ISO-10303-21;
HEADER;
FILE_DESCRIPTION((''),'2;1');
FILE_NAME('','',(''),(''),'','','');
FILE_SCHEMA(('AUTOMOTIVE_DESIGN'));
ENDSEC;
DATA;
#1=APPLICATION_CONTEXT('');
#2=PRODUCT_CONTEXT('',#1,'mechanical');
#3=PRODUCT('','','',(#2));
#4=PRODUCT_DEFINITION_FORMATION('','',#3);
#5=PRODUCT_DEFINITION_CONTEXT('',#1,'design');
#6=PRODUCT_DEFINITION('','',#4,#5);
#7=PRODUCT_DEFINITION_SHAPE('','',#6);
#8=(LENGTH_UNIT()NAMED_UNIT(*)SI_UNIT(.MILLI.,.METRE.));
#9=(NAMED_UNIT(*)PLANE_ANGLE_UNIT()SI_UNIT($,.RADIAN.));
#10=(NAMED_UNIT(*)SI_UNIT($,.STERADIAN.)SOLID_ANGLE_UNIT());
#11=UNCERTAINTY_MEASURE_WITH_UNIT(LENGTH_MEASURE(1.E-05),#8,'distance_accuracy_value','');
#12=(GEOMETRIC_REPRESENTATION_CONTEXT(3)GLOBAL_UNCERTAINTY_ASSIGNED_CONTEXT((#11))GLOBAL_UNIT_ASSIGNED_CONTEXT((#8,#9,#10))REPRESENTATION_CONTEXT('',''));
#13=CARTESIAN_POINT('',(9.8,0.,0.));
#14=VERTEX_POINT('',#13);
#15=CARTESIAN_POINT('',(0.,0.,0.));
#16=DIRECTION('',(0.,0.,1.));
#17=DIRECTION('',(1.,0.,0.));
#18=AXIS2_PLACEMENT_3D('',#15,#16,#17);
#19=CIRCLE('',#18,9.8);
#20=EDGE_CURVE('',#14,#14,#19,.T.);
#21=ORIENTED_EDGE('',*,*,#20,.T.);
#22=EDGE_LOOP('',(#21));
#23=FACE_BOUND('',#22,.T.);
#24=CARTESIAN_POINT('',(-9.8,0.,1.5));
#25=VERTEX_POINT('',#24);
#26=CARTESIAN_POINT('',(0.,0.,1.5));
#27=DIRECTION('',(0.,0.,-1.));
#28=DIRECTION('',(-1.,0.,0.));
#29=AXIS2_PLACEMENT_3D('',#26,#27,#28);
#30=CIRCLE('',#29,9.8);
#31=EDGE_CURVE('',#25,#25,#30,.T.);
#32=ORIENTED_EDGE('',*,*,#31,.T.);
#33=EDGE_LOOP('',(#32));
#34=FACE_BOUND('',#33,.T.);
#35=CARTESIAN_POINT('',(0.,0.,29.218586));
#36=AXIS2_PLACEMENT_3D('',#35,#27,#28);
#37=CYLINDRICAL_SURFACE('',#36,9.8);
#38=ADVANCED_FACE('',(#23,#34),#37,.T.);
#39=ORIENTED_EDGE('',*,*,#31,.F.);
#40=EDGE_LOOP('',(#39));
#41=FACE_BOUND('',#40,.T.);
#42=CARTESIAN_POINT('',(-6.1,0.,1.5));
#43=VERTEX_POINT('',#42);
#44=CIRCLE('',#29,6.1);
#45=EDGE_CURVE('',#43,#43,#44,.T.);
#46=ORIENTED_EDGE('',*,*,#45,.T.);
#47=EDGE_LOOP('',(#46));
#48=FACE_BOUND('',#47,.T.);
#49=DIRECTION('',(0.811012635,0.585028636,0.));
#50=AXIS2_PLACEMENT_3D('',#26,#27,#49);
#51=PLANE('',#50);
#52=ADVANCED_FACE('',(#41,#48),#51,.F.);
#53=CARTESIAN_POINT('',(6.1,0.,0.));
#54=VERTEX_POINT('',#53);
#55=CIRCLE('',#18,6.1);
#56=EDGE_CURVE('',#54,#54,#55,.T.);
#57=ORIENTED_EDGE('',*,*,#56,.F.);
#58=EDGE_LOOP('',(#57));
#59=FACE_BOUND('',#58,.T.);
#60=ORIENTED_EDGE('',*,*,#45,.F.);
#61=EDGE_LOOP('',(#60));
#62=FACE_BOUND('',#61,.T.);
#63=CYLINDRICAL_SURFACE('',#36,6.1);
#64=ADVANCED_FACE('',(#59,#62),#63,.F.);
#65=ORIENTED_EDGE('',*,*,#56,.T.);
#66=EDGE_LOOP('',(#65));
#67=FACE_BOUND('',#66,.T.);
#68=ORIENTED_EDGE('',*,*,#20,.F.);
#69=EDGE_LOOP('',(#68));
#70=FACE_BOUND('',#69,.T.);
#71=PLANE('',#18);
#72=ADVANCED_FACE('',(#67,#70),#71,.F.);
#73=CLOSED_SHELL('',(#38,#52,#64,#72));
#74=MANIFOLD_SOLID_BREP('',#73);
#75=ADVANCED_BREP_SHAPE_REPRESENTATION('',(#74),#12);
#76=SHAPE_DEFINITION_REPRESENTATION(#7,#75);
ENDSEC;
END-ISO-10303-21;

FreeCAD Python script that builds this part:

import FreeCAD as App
import Part
import Sketcher

doc = App.newDocument("Part")
body = doc.addObject("PartDesign::Body", "Body")

# Sketch on XY plane
sketch1 = body.newObject("Sketcher::SketchObject", "Sketch")
sketch1.AttachmentSupport = (doc.getObject("XY_Plane"), [""])
sketch1.MapMode = "FlatFace"
sketch1.addGeometry(Part.Circle(App.Vector(0, 0, 0), App.Vector(0, 0, 1), 9.8), False)
sketch1.addGeometry(Part.Circle(App.Vector(0, 0, 0), App.Vector(0, 0, 1), 6.1), False)
sketch1.addConstraint(Sketcher.Constraint("Coincident", 0, 3, -1, 1))
sketch1.addConstraint(Sketcher.Constraint("Coincident", 1, 3, -1, 1))
sketch1.addConstraint(Sketcher.Constraint("Diameter", 0, 19.6))
sketch1.addConstraint(Sketcher.Constraint("Diameter", 1, 12.2))
pad1 = body.newObject("PartDesign::Pad", "Pad")
pad1.Profile = sketch1
pad1.Length = 1.5

doc.recompute()
